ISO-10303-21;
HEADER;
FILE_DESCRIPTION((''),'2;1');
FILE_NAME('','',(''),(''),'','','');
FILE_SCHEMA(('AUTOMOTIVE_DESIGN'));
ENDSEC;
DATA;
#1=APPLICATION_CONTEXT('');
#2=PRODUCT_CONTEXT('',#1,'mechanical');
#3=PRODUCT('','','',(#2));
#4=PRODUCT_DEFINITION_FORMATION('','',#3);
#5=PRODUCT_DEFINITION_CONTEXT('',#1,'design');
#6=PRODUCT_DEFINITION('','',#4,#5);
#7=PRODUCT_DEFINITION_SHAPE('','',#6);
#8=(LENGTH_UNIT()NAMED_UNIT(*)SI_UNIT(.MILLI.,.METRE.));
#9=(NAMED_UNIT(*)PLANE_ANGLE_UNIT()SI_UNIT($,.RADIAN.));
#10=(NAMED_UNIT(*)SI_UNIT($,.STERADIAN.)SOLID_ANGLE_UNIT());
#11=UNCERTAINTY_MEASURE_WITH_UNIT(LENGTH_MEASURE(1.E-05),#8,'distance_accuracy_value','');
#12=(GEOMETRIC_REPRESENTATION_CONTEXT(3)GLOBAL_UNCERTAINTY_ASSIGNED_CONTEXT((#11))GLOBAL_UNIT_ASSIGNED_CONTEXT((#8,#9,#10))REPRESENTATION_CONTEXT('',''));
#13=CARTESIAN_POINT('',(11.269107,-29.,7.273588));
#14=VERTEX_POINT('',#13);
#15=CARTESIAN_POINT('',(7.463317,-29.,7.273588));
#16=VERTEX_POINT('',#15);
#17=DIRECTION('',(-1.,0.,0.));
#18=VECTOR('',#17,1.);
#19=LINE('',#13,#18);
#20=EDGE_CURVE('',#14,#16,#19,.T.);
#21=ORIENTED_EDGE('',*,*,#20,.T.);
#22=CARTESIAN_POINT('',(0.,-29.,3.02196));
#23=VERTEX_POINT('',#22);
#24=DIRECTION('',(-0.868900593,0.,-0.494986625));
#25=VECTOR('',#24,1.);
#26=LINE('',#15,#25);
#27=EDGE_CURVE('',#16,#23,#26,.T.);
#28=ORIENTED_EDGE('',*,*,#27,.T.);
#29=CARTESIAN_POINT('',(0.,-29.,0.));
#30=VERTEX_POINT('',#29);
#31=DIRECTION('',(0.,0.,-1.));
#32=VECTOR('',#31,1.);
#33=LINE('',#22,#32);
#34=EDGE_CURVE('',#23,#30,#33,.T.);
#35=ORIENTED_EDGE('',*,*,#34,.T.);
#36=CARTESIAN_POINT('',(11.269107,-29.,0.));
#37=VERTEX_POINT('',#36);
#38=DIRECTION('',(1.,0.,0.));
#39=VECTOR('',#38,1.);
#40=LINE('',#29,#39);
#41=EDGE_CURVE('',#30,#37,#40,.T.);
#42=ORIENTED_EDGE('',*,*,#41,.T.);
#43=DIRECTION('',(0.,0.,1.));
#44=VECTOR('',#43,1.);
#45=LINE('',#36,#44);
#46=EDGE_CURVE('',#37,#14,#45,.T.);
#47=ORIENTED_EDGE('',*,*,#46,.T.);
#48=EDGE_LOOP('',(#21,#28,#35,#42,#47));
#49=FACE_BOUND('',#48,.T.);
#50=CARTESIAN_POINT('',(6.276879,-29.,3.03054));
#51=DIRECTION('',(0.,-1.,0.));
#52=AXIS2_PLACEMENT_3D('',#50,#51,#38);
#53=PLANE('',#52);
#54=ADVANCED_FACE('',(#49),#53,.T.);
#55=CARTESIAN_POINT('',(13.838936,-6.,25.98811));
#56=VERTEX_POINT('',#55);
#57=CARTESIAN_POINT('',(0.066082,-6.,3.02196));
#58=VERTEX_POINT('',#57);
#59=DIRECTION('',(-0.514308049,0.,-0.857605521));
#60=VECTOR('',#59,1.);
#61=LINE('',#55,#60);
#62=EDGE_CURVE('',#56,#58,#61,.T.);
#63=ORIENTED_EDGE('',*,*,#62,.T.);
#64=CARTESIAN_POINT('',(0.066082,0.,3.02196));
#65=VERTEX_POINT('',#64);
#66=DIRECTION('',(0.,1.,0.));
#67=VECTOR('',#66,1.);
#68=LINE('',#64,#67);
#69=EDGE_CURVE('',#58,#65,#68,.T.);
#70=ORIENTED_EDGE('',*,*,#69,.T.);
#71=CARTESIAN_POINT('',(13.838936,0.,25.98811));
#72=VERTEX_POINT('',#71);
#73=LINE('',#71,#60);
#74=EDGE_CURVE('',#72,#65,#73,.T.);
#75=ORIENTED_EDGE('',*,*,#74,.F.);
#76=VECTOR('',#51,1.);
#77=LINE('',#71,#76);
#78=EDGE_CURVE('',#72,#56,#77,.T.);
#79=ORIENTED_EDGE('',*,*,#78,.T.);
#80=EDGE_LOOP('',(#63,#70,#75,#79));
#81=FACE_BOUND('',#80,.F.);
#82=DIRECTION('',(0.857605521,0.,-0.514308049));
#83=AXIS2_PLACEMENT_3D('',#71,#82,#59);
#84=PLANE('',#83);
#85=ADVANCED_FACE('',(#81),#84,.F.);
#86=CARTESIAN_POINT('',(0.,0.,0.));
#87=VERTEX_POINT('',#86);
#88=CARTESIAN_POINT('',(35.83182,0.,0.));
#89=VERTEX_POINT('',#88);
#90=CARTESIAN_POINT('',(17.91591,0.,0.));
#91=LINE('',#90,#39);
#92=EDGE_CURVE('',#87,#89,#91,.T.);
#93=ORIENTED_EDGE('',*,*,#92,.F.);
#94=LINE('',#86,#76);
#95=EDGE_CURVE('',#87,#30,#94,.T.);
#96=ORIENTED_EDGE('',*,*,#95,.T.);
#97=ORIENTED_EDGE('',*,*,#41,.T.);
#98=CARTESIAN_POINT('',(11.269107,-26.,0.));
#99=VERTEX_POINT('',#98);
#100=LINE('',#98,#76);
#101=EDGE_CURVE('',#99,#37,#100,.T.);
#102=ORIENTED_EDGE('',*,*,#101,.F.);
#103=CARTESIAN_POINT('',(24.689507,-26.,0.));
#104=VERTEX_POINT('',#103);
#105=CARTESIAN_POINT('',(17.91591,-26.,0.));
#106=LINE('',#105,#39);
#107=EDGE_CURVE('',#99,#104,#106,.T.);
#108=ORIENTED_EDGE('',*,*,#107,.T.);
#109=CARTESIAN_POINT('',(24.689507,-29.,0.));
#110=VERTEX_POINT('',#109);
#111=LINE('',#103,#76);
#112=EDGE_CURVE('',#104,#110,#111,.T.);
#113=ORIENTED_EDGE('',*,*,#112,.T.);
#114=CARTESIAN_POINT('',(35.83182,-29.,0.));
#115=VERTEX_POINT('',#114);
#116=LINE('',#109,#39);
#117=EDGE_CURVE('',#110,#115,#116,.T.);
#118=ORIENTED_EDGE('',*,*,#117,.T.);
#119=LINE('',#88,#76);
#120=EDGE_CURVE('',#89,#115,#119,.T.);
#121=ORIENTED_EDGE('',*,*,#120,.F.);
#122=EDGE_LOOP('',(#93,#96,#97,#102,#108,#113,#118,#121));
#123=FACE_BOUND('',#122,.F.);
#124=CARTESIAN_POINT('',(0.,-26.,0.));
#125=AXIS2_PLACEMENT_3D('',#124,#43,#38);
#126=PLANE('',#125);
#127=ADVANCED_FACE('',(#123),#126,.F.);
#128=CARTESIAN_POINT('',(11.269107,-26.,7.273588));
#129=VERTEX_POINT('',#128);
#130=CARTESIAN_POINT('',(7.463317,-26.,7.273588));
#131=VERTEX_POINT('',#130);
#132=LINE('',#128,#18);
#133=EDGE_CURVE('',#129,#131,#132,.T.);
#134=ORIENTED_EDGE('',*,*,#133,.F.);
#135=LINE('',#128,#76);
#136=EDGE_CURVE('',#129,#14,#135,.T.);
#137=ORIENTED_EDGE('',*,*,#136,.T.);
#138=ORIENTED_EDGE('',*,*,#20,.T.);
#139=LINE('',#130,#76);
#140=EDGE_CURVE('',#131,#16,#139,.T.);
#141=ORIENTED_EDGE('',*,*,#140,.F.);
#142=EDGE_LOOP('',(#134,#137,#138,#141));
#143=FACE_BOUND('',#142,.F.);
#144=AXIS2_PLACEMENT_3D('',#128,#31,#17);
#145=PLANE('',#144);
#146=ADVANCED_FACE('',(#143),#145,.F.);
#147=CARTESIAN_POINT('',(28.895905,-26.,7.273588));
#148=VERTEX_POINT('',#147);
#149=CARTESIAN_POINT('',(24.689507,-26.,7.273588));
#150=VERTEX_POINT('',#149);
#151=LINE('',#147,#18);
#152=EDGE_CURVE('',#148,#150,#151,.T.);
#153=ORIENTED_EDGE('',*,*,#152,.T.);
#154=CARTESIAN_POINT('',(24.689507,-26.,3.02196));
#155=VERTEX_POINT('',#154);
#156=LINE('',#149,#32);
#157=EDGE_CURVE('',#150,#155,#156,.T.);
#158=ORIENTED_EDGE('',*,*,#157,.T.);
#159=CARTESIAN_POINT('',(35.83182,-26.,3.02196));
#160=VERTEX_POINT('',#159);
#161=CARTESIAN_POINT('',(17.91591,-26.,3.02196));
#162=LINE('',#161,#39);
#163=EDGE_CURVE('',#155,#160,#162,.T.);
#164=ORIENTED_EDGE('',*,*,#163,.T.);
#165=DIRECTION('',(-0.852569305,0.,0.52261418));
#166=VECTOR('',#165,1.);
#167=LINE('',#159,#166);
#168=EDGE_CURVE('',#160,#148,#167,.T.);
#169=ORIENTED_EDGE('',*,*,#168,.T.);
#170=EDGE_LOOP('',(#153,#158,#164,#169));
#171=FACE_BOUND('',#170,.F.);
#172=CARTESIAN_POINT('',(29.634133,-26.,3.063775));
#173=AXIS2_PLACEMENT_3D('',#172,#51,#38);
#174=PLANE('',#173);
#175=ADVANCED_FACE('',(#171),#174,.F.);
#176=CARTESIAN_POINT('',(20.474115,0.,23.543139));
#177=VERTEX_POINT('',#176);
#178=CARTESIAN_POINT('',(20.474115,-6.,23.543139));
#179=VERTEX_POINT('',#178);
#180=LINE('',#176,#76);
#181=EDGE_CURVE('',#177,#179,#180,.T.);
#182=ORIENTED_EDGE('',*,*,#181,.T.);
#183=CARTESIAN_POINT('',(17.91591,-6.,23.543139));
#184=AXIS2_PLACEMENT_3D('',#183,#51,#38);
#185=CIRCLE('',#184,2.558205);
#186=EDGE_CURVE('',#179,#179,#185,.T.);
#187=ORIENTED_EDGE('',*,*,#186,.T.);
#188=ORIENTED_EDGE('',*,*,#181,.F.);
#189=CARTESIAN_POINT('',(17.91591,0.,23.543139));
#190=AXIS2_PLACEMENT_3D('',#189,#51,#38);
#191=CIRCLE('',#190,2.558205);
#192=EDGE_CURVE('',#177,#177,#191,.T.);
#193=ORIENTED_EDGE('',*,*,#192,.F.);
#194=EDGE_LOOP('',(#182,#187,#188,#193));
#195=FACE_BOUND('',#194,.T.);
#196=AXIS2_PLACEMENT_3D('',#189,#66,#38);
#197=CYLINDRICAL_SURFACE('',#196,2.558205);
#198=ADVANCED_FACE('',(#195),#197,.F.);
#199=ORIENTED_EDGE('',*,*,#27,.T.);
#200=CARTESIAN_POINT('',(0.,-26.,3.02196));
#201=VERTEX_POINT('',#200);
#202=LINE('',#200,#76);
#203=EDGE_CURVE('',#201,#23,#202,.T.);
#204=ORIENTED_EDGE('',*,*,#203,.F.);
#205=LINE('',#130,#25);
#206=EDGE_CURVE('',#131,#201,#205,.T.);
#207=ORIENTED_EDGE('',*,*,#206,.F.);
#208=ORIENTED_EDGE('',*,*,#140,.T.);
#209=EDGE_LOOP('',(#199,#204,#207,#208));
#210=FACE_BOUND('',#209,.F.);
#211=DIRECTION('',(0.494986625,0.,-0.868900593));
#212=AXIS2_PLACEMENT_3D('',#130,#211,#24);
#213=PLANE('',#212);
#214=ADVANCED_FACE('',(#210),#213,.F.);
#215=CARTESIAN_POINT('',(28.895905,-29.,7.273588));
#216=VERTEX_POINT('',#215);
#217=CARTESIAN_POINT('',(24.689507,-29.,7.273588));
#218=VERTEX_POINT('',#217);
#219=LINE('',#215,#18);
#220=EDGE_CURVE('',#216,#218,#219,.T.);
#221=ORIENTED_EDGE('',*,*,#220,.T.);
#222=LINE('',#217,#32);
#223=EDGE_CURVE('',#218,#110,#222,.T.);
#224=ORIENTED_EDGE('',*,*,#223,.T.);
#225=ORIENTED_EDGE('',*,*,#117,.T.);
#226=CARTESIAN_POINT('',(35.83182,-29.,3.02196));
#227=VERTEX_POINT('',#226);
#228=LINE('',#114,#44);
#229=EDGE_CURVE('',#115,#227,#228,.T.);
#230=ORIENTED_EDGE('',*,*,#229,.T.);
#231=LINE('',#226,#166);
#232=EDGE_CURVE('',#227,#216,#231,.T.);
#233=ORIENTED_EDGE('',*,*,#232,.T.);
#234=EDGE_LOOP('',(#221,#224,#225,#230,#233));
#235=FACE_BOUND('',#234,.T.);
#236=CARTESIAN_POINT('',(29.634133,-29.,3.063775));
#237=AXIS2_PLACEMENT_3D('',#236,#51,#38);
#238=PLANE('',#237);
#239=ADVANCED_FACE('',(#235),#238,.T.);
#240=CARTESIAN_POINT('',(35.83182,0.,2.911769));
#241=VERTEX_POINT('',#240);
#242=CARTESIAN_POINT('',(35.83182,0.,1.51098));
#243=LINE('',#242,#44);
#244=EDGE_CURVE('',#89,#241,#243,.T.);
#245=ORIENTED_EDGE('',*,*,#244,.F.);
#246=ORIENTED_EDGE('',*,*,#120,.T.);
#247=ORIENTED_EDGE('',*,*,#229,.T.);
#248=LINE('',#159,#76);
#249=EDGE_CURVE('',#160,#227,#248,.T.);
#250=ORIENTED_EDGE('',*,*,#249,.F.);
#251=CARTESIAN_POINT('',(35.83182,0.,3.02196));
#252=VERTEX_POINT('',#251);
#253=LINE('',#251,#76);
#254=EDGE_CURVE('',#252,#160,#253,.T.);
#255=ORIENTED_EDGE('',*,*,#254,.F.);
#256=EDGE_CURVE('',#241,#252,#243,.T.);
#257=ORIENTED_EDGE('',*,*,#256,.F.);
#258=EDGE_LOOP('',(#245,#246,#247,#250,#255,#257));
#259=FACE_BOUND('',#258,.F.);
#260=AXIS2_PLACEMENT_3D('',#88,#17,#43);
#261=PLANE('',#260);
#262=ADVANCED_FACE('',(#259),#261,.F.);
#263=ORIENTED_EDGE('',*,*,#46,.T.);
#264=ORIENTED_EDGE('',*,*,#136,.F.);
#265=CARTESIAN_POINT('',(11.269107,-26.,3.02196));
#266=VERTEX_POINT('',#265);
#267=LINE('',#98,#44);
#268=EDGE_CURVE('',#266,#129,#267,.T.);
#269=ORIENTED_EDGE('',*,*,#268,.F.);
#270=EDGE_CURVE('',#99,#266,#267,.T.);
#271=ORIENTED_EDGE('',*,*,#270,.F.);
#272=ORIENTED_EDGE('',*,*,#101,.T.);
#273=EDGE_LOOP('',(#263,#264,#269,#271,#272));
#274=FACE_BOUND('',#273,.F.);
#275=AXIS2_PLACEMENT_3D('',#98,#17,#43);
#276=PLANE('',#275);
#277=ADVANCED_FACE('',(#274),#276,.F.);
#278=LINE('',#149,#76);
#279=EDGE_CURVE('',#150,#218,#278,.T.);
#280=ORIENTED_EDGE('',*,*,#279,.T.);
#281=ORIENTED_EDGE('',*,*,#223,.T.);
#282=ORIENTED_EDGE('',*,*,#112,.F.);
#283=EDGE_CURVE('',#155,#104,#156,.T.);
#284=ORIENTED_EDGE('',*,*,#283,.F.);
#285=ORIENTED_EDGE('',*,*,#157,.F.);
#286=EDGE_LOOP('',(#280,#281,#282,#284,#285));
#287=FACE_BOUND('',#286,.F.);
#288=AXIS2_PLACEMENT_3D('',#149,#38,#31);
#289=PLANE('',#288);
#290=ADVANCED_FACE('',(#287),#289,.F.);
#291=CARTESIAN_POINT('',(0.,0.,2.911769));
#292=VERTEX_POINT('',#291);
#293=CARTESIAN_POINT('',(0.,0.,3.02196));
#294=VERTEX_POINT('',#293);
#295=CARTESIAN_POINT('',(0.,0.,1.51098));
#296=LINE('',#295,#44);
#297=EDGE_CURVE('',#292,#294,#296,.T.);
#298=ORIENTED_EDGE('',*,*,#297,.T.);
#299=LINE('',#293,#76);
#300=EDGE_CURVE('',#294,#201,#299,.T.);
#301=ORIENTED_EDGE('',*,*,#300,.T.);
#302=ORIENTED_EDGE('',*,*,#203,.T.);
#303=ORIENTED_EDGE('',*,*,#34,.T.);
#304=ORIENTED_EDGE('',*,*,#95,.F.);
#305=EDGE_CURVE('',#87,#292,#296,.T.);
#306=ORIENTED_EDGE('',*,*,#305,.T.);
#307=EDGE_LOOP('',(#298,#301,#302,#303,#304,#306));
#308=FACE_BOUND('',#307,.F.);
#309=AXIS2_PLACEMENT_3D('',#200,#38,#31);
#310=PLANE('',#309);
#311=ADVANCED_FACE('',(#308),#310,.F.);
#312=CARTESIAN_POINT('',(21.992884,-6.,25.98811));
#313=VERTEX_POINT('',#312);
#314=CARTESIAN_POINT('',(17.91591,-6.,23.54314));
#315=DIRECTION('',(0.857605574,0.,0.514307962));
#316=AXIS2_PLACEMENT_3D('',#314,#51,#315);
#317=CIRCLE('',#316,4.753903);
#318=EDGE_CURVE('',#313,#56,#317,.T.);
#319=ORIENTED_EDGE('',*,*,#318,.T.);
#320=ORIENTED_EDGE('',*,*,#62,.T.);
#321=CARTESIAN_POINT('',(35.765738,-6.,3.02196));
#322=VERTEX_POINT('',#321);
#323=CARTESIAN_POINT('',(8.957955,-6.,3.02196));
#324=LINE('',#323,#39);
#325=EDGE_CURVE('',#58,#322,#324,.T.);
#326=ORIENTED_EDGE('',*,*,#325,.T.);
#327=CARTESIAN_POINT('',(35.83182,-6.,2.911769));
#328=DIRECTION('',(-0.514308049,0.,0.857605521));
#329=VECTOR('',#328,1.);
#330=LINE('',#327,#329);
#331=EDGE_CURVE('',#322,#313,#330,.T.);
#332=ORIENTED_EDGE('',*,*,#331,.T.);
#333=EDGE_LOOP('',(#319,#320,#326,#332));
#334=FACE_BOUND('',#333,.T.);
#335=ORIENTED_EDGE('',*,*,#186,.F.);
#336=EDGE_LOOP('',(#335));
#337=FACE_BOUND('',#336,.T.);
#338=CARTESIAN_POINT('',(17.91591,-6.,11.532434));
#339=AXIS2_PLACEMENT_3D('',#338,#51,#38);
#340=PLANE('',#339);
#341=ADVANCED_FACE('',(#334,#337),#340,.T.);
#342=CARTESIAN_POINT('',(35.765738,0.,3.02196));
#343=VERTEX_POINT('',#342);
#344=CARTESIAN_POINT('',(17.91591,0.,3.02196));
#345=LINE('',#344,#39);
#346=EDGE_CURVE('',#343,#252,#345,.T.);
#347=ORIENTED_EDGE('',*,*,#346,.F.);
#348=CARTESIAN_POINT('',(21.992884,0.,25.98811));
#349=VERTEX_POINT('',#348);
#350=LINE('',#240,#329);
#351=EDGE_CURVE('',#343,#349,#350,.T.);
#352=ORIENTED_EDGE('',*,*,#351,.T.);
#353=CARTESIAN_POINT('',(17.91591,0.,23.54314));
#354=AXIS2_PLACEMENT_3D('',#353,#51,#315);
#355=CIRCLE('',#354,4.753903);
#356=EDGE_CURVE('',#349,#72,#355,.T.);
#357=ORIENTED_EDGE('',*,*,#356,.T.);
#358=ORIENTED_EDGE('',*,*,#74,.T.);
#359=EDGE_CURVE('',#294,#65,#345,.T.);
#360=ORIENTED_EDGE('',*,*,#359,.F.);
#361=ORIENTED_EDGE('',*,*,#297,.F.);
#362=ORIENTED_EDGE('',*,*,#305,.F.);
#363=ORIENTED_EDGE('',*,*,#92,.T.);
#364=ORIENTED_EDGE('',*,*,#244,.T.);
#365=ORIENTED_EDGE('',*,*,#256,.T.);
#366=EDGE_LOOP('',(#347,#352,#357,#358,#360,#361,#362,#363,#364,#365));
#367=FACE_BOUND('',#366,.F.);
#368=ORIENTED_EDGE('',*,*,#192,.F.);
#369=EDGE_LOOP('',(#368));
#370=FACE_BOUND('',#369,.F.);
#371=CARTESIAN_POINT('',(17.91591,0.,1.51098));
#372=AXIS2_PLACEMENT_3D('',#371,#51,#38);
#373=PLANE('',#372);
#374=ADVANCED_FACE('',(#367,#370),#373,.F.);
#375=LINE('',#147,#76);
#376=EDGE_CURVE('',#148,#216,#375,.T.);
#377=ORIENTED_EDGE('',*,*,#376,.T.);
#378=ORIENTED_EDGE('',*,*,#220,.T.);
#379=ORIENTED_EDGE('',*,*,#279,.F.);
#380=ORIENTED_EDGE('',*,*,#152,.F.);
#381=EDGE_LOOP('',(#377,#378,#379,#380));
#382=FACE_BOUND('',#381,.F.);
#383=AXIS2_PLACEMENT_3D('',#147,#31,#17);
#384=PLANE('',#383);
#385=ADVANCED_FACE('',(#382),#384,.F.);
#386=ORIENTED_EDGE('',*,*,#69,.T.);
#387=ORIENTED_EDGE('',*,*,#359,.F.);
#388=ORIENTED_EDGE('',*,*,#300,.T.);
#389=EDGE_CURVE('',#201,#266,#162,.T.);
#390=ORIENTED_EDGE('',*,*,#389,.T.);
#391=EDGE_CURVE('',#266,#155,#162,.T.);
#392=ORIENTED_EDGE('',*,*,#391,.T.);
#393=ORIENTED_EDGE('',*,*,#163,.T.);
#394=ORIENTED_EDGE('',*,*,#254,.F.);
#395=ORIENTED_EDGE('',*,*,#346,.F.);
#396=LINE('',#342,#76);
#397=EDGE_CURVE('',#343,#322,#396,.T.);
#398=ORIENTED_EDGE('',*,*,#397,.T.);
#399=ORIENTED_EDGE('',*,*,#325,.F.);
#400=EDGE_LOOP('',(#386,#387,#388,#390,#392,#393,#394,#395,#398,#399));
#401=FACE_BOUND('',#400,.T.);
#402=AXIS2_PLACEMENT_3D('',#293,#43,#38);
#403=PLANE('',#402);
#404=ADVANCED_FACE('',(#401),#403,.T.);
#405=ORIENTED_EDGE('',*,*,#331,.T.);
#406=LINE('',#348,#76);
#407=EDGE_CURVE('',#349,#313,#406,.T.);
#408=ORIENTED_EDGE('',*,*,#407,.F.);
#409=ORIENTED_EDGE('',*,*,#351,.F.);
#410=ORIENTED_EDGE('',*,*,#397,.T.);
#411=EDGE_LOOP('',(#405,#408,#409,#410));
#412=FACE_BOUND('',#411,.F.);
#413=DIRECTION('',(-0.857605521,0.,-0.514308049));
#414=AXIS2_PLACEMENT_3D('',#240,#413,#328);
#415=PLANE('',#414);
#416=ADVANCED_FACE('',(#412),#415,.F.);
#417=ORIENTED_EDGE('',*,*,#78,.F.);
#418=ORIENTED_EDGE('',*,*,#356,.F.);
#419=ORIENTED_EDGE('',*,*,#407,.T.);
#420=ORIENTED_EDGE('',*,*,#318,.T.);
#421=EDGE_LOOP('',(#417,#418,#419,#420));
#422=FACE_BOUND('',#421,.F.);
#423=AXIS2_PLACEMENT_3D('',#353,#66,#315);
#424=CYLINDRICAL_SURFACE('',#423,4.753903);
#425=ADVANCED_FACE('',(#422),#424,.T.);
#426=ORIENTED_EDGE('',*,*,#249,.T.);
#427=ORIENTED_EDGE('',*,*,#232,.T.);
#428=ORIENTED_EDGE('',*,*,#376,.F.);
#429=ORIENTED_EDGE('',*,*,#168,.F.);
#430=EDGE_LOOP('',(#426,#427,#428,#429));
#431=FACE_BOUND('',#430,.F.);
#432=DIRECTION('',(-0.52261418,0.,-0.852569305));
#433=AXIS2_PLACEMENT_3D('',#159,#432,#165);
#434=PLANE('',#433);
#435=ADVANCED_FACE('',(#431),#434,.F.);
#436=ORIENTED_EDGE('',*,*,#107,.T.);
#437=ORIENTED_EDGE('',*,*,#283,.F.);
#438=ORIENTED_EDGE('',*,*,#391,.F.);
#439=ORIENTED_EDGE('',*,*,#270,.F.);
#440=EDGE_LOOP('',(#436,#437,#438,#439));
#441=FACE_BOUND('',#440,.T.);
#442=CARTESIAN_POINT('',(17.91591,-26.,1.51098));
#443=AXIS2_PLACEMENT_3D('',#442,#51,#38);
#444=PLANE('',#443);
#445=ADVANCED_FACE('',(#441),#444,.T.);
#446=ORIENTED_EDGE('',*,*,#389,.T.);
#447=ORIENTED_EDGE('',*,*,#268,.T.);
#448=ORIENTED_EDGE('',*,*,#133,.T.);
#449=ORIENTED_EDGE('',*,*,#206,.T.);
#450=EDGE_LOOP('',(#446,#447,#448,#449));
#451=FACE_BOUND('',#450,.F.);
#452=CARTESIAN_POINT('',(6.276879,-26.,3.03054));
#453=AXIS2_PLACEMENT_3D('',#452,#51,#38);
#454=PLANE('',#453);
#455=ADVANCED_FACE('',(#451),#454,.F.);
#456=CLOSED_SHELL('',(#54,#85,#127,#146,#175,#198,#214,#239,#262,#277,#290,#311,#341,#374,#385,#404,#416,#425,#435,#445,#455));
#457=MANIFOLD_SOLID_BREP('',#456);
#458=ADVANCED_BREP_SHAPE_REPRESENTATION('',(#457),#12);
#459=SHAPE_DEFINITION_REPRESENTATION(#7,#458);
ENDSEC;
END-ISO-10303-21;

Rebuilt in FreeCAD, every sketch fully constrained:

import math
import FreeCAD as App
import Part
import Sketcher

V = App.Vector
Q = App.Units.Quantity

doc = App.newDocument("Part")
body = doc.addObject("PartDesign::Body", "Body")

sketch1 = doc.addObject("Sketcher::SketchObject", "Sketch")
body.addObject(sketch1)
sketch1.AttachmentSupport = (doc.XZ_Plane, [""])
sketch1.MapMode = "FlatFace"
sketch1.addGeometry([
    Part.LineSegment(V(0, 3, 0), V(0, 0, 0)),
    Part.LineSegment(V(0, 0, 0), V(35.8, 0, 0)),
    Part.LineSegment(V(35.8, 0, 0), V(35.8, 3, 0)),
    Part.LineSegment(V(35.8, 3, 0), V(0, 3, 0)),
], False)
sketch1.addConstraint([
    Sketcher.Constraint("Coincident", 0, 2, 1, 1),
    Sketcher.Constraint("Coincident", 1, 2, 2, 1),
    Sketcher.Constraint("Coincident", 2, 2, 3, 1),
    Sketcher.Constraint("Coincident", 3, 2, 0, 1),
    Sketcher.Constraint("Vertical", 0),
    Sketcher.Constraint("Horizontal", 1),
    Sketcher.Constraint("Vertical", 2),
    Sketcher.Constraint("Horizontal", 3),
    Sketcher.Constraint("Coincident", 0, 2, -1, 1),
    Sketcher.Constraint("DistanceX", 1, 1, 1, 2, Q("35.83182 mm")),
    Sketcher.Constraint("DistanceY", 0, 2, 0, 1, Q("3.02196 mm")),
])
pad1 = doc.addObject("PartDesign::Pad", "Pad")
body.addObject(pad1)
pad1.Profile = sketch1
pad1.Length = 26

sketch2 = doc.addObject("Sketcher::SketchObject", "Sketch001")
body.addObject(sketch2)
sketch2.AttachmentSupport = (doc.XZ_Plane, [""])
sketch2.MapMode = "FlatFace"
sketch2.addGeometry([
    Part.LineSegment(V(0, 2.9, 0), V(35.8, 2.9, 0)),
    Part.LineSegment(V(35.8, 2.9, 0), V(22, 26, 0)),
    Part.ArcOfCircle(Part.Circle(V(17.9, 23.5, 0), V(0, 0, 1), 4.8), math.radians(31), math.radians(149)),
    Part.LineSegment(V(13.8, 26, 0), V(0, 2.9, 0)),
    Part.Circle(V(17.9, 23.5, 0), V(0, 0, 1), 2.6),
], False)
sketch2.addConstraint([
    Sketcher.Constraint("Coincident", 0, 2, 1, 1),
    Sketcher.Constraint("Tangent", 1, 2, 2, 1),
    Sketcher.Constraint("Tangent", 2, 2, 3, 1),
    Sketcher.Constraint("Coincident", 3, 2, 0, 1),
    Sketcher.Constraint("Horizontal", 0),
    Sketcher.Constraint("Coincident", 4, 3, 2, 3),
    Sketcher.Constraint("PointOnObject", 3, 2, -2),
    Sketcher.Constraint("Horizontal", 1, 2, 2, 2),
    Sketcher.Constraint("Diameter", 4, Q("5.11641 mm")),
    Sketcher.Constraint("Radius", 2, Q("4.753903 mm")),
    Sketcher.Constraint("DistanceX", 0, 1, 0, 2, Q("35.83182 mm")),
    Sketcher.Constraint("DistanceY", -1, 1, 2, 3, Q("23.54314 mm")),
    Sketcher.Constraint("DistanceY", -1, 1, 0, 2, Q("2.911769 mm")),
])
pad2 = doc.addObject("PartDesign::Pad", "Pad001")
body.addObject(pad2)
pad2.Profile = sketch2
pad2.Length = 6

sketch3 = doc.addObject("Sketcher::SketchObject", "Sketch002")
body.addObject(sketch3)
sketch3.AttachmentSupport = (doc.XZ_Plane, [""])
sketch3.MapMode = "FlatFace"
sketch3.AttachmentOffset = App.Placement(V(0, 0, 26), App.Rotation())
sketch3.addGeometry([
    Part.LineSegment(V(0, 3, 0), V(0, 0, 0)),
    Part.LineSegment(V(0, 0, 0), V(11.3, 0, 0)),
    Part.LineSegment(V(11.3, 0, 0), V(11.3, 7.3, 0)),
    Part.LineSegment(V(11.3, 7.3, 0), V(7.5, 7.3, 0)),
    Part.LineSegment(V(7.5, 7.3, 0), V(0, 3, 0)),
    Part.LineSegment(V(24.7, 0, 0), V(35.8, 0, 0)),
    Part.LineSegment(V(35.8, 0, 0), V(35.8, 3, 0)),
    Part.LineSegment(V(35.8, 3, 0), V(28.9, 7.3, 0)),
    Part.LineSegment(V(28.9, 7.3, 0), V(24.7, 7.3, 0)),
    Part.LineSegment(V(24.7, 7.3, 0), V(24.7, 0, 0)),
], False)
sketch3.addConstraint([
    Sketcher.Constraint("Coincident", 0, 2, 1, 1),
    Sketcher.Constraint("Coincident", 1, 2, 2, 1),
    Sketcher.Constraint("Coincident", 2, 2, 3, 1),
    Sketcher.Constraint("Coincident", 3, 2, 4, 1),
    Sketcher.Constraint("Coincident", 4, 2, 0, 1),
    Sketcher.Constraint("Coincident", 5, 2, 6, 1),
    Sketcher.Constraint("Coincident", 6, 2, 7, 1),
    Sketcher.Constraint("Coincident", 7, 2, 8, 1),
    Sketcher.Constraint("Coincident", 8, 2, 9, 1),
    Sketcher.Constraint("Coincident", 9, 2, 5, 1),
    Sketcher.Constraint("Vertical", 0),
    Sketcher.Constraint("Horizontal", 1),
    Sketcher.Constraint("Vertical", 2),
    Sketcher.Constraint("Horizontal", 3),
    Sketcher.Constraint("Horizontal", 5),
    Sketcher.Constraint("Vertical", 6),
    Sketcher.Constraint("Horizontal", 8),
    Sketcher.Constraint("Vertical", 9),
    Sketcher.Constraint("Coincident", 0, 2, -1, 1),
    Sketcher.Constraint("PointOnObject", 5, 2, -1),
    Sketcher.Constraint("Horizontal", 4, 2, 6, 2),
    Sketcher.Constraint("Horizontal", 3, 2, 7, 2),
    Sketcher.Constraint("DistanceX", 3, 2, 3, 1, Q("3.80579 mm")),
    Sketcher.Constraint("DistanceY", 0, 2, 0, 1, Q("3.02196 mm")),
    Sketcher.Constraint("DistanceX", 2, 2, 7, 2, Q("17.626798 mm")),
    Sketcher.Constraint("DistanceX", 2, 2, 8, 2, Q("13.4204 mm")),
    Sketcher.Constraint("Distance", 4, Q("8.58938 mm")),
    Sketcher.Constraint("Distance", 7, Q("8.135309 mm")),
    Sketcher.Constraint("DistanceX", 1, 1, 1, 2, Q("11.269107 mm")),
])
pad3 = doc.addObject("PartDesign::Pad", "Pad002")
body.addObject(pad3)
pad3.Profile = sketch3
pad3.Length = 3

doc.recompute()
